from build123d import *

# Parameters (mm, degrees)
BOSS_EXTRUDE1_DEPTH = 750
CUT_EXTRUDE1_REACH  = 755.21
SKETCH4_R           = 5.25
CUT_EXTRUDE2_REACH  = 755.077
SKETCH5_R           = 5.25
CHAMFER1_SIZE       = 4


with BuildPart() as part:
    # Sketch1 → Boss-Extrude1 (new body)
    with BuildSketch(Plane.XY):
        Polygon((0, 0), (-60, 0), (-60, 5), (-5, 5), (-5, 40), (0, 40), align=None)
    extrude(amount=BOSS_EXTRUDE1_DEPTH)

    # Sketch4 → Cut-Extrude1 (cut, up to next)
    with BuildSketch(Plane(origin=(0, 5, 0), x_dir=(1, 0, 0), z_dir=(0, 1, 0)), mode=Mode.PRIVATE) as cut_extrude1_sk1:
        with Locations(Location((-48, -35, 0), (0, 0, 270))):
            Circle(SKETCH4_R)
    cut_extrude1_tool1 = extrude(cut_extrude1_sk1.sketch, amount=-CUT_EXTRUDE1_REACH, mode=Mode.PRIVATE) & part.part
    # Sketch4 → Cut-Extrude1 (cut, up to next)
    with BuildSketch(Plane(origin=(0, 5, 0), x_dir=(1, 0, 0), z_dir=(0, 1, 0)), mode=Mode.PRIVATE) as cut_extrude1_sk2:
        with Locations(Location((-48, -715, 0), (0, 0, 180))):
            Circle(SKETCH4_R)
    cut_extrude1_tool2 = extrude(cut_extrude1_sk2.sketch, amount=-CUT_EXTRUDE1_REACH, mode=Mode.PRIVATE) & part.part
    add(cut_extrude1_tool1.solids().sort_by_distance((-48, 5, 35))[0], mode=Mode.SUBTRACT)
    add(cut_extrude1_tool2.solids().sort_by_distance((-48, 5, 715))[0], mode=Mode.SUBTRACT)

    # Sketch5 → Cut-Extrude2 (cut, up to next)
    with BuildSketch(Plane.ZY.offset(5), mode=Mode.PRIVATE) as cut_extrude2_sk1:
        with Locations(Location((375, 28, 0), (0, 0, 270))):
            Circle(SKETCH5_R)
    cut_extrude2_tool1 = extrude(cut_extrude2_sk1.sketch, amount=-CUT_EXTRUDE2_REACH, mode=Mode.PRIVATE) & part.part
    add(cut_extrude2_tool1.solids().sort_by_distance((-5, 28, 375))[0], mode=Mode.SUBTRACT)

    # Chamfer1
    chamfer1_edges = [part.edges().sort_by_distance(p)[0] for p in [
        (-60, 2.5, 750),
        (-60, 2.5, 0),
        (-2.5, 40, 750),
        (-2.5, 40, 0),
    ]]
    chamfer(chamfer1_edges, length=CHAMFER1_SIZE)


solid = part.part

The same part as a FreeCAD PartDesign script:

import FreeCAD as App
import Part
import Sketcher
Q = App.Units.Quantity


def edges_at(feature, points):
    """Names of the edges that pass closest to the given points."""
    edges = feature.Shape.Edges
    near = lambda p: min(range(len(edges)), key=lambda i: edges[i].distToShape(Part.Vertex(*p))[0])
    return sorted({f"Edge{near(p) + 1}" for p in points})


def add_polygon(sketch, points):
    """Adds a closed chain of lines whose ends are joined by coincident constraints."""
    first, n = sketch.GeometryCount, len(points)
    for a, b in zip(points, points[1:] + points[:1]):
        sketch.addGeometry(Part.LineSegment(App.Vector(*a, 0), App.Vector(*b, 0)), False)
    for i in range(n):
        sketch.addConstraint(Sketcher.Constraint("Coincident", first + i, 2, first + (i + 1) % n, 1))

doc = App.newDocument("Part")
params = doc.addObject("Spreadsheet::Sheet", "Params")
for row, (alias, value) in enumerate([
    ("sketch1_width", "60 mm"),
    ("sketch1_width2", "5 mm"),
    ("sketch1_height", "40 mm"),
    ("pad1_length", "750 mm"),
    ("sketch2_diameter", "10.5 mm"),
    ("sketch3_diameter", "10.5 mm"),
    ("sketch4_diameter", "10.5 mm"),
    ("chamfer_size", "4 mm"),
], start=1):
    params.set(f"A{row}", alias)
    params.set(f"B{row}", "=" + value)
    params.setAlias(f"B{row}", alias)

body = doc.addObject("PartDesign::Body", "Body")

# Sketch on XY plane
sketch1 = body.newObject("Sketcher::SketchObject", "Sketch")
sketch1.AttachmentSupport = (doc.getObject("XY_Plane"), [""])
sketch1.MapMode = "FlatFace"
add_polygon(sketch1, [(-60, 0), (0, 0), (0, 40), (-5, 40), (-5, 5), (-60, 5)])  # lines 0-5
sketch1.addConstraint([
    Sketcher.Constraint("Horizontal", 0),
    Sketcher.Constraint("Vertical", 1),
    Sketcher.Constraint("Horizontal", 2),
    Sketcher.Constraint("Vertical", 3),
    Sketcher.Constraint("Horizontal", 4),
    Sketcher.Constraint("Vertical", 5),
    Sketcher.Constraint("Coincident", 0, 2, -1, 1),
    Sketcher.Constraint("Equal", 2, 5),
    Sketcher.Constraint("DistanceX", 0, 1, 0, 2, Q("60 mm")),
    Sketcher.Constraint("DistanceX", 2, 2, 2, 1, Q("5 mm")),
    Sketcher.Constraint("DistanceY", 1, 1, 1, 2, Q("40 mm")),
])
sketch1.setExpression("Constraints[14]", "Params.sketch1_width")
sketch1.setExpression("Constraints[15]", "Params.sketch1_width2")
sketch1.setExpression("Constraints[16]", "Params.sketch1_height")
pad1 = body.newObject("PartDesign::Pad", "Pad")
pad1.Profile = sketch1
pad1.setExpression("Length", "Params.pad1_length")

# Sketch on XZ plane
sketch2 = body.newObject("Sketcher::SketchObject", "Sketch001")
sketch2.AttachmentSupport = (doc.getObject("XZ_Plane"), [""])
sketch2.MapMode = "FlatFace"
sketch2.AttachmentOffset = App.Placement(App.Vector(0, 0, -5), App.Rotation())
sketch2.addGeometry(Part.Circle(App.Vector(-48, 35, 0), App.Vector(0, 0, 1), 5), False)
sketch2.addConstraint([
    Sketcher.Constraint("Diameter", 0, Q("10.5 mm")),
    Sketcher.Constraint("DistanceX", 0, 3, -1, 1, Q("48 mm")),
    Sketcher.Constraint("DistanceY", -1, 1, 0, 3, Q("35 mm")),
])
sketch2.setExpression("Constraints[0]", "Params.sketch2_diameter")
pocket1 = body.newObject("PartDesign::Pocket", "Pocket")
pocket1.Profile = sketch2
pocket1.Type = "UpToFirst"
pocket1.Reversed = True

# Sketch on XZ plane
sketch3 = body.newObject("Sketcher::SketchObject", "Sketch002")
sketch3.AttachmentSupport = (doc.getObject("XZ_Plane"), [""])
sketch3.MapMode = "FlatFace"
sketch3.AttachmentOffset = App.Placement(App.Vector(0, 0, -5), App.Rotation())
sketch3.addGeometry(Part.Circle(App.Vector(-48, 715, 0), App.Vector(0, 0, 1), 5), False)
sketch3.addConstraint([
    Sketcher.Constraint("Diameter", 0, Q("10.5 mm")),
    Sketcher.Constraint("DistanceX", 0, 3, -1, 1, Q("48 mm")),
    Sketcher.Constraint("DistanceY", -1, 1, 0, 3, Q("715 mm")),
])
sketch3.setExpression("Constraints[0]", "Params.sketch3_diameter")
pocket2 = body.newObject("PartDesign::Pocket", "Pocket001")
pocket2.Profile = sketch3
pocket2.Type = "UpToFirst"
pocket2.Reversed = True

# Sketch on YZ plane
sketch4 = body.newObject("Sketcher::SketchObject", "Sketch003")
sketch4.AttachmentSupport = (doc.getObject("YZ_Plane"), [""])
sketch4.MapMode = "FlatFace"
sketch4.AttachmentOffset = App.Placement(App.Vector(0, 0, -5), App.Rotation())
sketch4.addGeometry(Part.Circle(App.Vector(28, 375, 0), App.Vector(0, 0, 1), 5), False)
sketch4.addConstraint([
    Sketcher.Constraint("Diameter", 0, Q("10.5 mm")),
    Sketcher.Constraint("DistanceX", -1, 1, 0, 3, Q("28 mm")),
    Sketcher.Constraint("DistanceY", -1, 1, 0, 3, Q("375 mm")),
])
sketch4.setExpression("Constraints[0]", "Params.sketch4_diameter")
pocket3 = body.newObject("PartDesign::Pocket", "Pocket002")
pocket3.Profile = sketch4
pocket3.Type = "UpToFirst"
pocket3.Reversed = True
doc.recompute()

chamfer = body.newObject("PartDesign::Chamfer", "Chamfer")
chamfer.Base = (pocket3, edges_at(pocket3, [
    (-60, 2.5, 750),
    (-60, 2.5, 0),
    (-2.5, 40, 750),
    (-2.5, 40, 0),
]))
chamfer.setExpression("Size", "Params.chamfer_size")

doc.recompute()
